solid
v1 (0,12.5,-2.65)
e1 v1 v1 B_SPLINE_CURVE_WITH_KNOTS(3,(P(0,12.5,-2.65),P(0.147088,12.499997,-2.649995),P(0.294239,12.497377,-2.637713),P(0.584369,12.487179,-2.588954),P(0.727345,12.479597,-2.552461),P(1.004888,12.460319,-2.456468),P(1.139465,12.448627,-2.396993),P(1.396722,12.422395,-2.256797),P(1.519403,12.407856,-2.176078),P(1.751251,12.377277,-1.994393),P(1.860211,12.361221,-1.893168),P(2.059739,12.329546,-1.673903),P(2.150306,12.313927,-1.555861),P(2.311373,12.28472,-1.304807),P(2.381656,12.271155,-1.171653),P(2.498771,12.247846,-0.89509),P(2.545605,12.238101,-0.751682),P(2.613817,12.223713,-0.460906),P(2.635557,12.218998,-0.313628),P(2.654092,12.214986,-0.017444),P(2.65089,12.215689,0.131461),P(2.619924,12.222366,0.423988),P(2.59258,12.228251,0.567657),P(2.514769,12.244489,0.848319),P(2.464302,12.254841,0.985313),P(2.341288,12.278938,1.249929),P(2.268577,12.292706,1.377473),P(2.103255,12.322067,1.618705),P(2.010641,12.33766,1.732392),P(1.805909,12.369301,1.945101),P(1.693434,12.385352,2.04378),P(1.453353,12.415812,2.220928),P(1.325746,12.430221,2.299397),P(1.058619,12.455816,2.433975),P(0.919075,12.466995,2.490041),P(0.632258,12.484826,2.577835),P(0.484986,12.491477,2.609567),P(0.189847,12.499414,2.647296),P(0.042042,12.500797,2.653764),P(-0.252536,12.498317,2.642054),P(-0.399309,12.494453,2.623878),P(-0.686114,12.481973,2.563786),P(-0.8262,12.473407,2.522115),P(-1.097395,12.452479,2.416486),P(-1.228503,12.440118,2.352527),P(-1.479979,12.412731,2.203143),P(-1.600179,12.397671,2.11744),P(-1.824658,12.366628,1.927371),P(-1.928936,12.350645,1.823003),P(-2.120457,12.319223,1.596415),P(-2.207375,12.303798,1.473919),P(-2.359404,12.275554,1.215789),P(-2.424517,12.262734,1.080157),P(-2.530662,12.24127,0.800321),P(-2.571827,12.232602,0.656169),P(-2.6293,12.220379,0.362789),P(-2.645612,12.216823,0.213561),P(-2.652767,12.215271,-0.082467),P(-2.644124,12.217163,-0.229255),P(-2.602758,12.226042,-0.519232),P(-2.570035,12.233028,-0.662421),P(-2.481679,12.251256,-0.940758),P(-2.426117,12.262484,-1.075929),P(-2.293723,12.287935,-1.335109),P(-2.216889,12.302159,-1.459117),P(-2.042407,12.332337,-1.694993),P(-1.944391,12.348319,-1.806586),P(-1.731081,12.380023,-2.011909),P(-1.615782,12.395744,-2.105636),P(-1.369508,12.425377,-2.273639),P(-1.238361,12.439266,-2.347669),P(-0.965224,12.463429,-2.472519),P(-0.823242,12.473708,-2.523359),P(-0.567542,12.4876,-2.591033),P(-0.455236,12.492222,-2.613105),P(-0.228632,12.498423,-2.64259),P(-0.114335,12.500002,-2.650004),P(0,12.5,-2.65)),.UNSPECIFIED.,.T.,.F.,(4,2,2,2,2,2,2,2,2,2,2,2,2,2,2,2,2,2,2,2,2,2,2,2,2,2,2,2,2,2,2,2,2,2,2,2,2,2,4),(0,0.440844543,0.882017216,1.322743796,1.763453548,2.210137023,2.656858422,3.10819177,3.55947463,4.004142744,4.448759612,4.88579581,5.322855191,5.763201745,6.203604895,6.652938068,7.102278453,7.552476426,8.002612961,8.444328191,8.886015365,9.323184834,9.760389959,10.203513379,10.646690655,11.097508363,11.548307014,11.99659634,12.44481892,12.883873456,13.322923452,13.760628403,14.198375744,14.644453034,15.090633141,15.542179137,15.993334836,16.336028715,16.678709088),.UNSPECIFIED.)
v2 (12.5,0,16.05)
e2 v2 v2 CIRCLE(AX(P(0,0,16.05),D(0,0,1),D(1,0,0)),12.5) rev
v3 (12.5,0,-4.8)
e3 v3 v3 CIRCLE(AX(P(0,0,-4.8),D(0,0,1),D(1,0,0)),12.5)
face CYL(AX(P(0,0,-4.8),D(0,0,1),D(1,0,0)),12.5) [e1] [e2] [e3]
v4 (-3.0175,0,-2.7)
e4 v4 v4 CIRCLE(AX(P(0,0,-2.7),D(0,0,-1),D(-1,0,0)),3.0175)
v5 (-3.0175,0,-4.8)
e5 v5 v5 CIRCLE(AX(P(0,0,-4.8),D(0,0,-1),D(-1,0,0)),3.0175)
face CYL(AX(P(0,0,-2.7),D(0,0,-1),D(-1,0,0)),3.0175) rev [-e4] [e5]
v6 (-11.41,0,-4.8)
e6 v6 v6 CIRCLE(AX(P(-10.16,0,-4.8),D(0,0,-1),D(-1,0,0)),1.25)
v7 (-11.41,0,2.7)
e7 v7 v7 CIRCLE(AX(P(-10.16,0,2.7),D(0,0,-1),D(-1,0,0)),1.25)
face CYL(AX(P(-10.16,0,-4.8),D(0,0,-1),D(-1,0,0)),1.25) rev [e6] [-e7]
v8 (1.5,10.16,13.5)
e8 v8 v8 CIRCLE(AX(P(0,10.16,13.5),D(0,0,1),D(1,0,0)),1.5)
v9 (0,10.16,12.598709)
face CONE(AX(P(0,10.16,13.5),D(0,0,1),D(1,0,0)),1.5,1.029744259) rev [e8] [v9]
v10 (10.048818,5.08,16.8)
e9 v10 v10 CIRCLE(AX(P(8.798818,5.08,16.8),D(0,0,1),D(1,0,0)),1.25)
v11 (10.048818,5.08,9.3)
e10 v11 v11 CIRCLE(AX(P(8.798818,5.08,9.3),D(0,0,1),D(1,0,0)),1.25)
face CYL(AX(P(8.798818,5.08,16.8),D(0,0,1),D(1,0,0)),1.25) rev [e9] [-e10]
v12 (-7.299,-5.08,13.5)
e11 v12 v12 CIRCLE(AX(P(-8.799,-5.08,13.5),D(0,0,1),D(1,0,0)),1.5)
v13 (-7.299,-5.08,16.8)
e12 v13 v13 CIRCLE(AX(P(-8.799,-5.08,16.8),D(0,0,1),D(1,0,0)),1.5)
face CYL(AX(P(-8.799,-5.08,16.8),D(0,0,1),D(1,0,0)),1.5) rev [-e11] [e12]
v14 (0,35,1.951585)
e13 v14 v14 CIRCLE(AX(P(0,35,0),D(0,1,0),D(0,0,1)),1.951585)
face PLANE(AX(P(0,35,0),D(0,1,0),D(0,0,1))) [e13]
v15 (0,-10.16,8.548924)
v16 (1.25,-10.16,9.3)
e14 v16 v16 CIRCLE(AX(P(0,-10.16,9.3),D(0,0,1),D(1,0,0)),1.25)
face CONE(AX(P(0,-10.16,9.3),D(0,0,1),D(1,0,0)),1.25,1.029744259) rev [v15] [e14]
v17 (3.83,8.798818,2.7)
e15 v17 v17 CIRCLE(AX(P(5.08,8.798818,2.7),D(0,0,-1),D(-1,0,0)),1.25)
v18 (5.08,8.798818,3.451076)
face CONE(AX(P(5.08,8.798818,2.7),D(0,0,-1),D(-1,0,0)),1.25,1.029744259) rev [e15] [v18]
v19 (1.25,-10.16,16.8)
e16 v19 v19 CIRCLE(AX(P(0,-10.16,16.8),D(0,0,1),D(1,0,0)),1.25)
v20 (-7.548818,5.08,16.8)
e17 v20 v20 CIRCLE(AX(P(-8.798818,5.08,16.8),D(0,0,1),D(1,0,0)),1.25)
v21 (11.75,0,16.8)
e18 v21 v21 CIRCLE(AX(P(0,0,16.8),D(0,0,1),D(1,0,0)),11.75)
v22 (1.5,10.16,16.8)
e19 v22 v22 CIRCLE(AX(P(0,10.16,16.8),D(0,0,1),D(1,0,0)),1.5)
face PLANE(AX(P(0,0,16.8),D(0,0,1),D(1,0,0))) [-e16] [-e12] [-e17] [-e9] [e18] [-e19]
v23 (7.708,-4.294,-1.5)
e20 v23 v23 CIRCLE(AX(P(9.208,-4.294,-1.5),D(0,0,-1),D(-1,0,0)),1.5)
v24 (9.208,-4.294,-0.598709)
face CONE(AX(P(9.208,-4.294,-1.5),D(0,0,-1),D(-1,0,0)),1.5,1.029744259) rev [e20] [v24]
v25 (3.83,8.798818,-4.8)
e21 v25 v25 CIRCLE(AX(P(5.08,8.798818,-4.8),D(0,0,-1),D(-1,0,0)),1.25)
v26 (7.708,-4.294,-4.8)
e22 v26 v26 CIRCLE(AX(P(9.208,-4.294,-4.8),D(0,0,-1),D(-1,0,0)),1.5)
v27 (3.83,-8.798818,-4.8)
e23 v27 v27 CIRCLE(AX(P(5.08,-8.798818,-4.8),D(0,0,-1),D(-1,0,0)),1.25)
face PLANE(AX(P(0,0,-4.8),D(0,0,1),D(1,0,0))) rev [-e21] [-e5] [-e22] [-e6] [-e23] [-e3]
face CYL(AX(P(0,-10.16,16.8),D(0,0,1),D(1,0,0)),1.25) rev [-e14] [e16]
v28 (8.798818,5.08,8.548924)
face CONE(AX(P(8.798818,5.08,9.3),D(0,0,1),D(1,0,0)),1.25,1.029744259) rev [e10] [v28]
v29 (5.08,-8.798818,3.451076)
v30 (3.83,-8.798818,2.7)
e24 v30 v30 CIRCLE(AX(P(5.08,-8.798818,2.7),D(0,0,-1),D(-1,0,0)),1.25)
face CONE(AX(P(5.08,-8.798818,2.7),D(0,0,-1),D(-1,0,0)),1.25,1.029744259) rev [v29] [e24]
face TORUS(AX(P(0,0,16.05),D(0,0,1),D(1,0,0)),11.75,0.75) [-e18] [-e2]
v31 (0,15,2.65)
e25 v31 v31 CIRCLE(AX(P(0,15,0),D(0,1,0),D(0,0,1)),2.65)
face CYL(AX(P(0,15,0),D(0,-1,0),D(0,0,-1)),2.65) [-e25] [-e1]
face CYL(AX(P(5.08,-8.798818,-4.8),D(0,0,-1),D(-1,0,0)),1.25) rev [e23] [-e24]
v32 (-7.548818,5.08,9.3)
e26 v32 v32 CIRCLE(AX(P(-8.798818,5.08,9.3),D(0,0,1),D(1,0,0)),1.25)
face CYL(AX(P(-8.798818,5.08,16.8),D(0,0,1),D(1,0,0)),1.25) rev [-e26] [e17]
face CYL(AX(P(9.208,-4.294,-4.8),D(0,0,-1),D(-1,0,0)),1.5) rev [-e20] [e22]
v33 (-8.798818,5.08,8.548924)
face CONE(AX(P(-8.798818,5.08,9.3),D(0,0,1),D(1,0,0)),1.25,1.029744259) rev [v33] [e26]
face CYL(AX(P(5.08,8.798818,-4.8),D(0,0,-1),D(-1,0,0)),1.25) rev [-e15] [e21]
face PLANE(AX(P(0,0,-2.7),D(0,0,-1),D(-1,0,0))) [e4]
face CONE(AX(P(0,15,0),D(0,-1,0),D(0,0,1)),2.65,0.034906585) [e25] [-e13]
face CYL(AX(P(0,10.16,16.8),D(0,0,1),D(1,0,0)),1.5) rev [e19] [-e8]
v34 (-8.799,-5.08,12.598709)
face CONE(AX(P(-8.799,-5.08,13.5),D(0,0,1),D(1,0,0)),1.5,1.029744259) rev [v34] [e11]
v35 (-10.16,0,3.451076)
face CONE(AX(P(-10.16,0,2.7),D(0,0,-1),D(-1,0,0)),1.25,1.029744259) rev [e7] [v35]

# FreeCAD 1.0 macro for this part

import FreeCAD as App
import Part
import Sketcher
Q = App.Units.Quantity


def edges_at(feature, points):
    """Names of the edges that pass closest to the given points."""
    edges = feature.Shape.Edges
    near = lambda p: min(range(len(edges)), key=lambda i: edges[i].distToShape(Part.Vertex(*p))[0])
    return sorted({f"Edge{near(p) + 1}" for p in points})


def add_polygon(sketch, points):
    """Adds a closed chain of lines whose ends are joined by coincident constraints."""
    first, n = sketch.GeometryCount, len(points)
    for a, b in zip(points, points[1:] + points[:1]):
        sketch.addGeometry(Part.LineSegment(App.Vector(*a, 0), App.Vector(*b, 0)), False)
    for i in range(n):
        sketch.addConstraint(Sketcher.Constraint("Coincident", first + i, 2, first + (i + 1) % n, 1))

doc = App.newDocument("Part")
body = doc.addObject("PartDesign::Body", "Body")

sketch1 = body.newObject("Sketcher::SketchObject", "Sketch")
sketch1.AttachmentSupport = (doc.getObject("XY_Plane"), [""])
sketch1.MapMode = "FlatFace"
sketch1.addGeometry(Part.Circle(App.Vector(0, 0, 0), App.Vector(0, 0, 1), 12.5), False)
sketch1.addConstraint([
    Sketcher.Constraint("Coincident", 0, 3, -1, 1),
    Sketcher.Constraint("Diameter", 0, 25.0),
])
pad1 = body.newObject("PartDesign::Pad", "Pad")
pad1.Profile = sketch1
pad1.Type = "TwoLengths"
pad1.Length = 16.8
pad1.Length2 = 4.8

sketch2 = body.newObject("Sketcher::SketchObject", "Sketch001")
sketch2.AttachmentSupport = (doc.getObject("YZ_Plane"), [""])
sketch2.MapMode = "FlatFace"
add_polygon(sketch2, [(-10.16, 8.548924), (-10.16, 16.8), (-11.41, 16.8), (-11.41, 9.3)])
sketch2.addGeometry(Part.LineSegment(App.Vector(-10.16, 16.8, 0), App.Vector(-10.16, 8.548924, 0)), True)
sketch2.addConstraint([
    Sketcher.Constraint("Vertical", 0),
    Sketcher.Constraint("Horizontal", 1),
    Sketcher.Constraint("Vertical", 2),
    Sketcher.Constraint("Vertical", 4),
    Sketcher.Constraint("Coincident", 4, 1, 0, 2),
    Sketcher.Constraint("Equal", 0, 4),
    Sketcher.Constraint("Angle", 3, Q("-31 deg")),
    Sketcher.Constraint("DistanceY", 2, 2, 2, 1, 7.5),
    Sketcher.Constraint("DistanceX", 1, 2, 1, 1, 1.25),
    Sketcher.Constraint("DistanceY", -1, 1, 0, 2, 16.8),
    Sketcher.Constraint("DistanceX", 0, 2, -1, 1, 10.16),
])
groove = body.newObject("PartDesign::Groove", "Groove")
groove.Profile = sketch2
groove.ReferenceAxis = (sketch2, ["Axis0"])
groove.Angle = 360
doc.recompute()

polarpattern = body.newObject("PartDesign::PolarPattern", "PolarPattern")
polarpattern.Originals = [groove]
polarpattern.Axis = (doc.getObject("Z_Axis"), [""])
polarpattern.Angle = 360
polarpattern.Occurrences = 3
body.Tip = polarpattern

sketch3 = body.newObject("Sketcher::SketchObject", "Sketch002")
sketch3.AttachmentSupport = (doc.getObject("XY_Plane"), [""])
sketch3.MapMode = "FlatFace"
sketch3.AttachmentOffset = App.Placement(App.Vector(0, 0, 16.8), App.Rotation())
sketch3.addGeometry([
    Part.Circle(App.Vector(-8.799, -5.08, 0), App.Vector(0, 0, 1), 1.5),
    Part.Circle(App.Vector(0, 10.16, 0), App.Vector(0, 0, 1), 1.5),
], False)
sketch3.addConstraint([
    Sketcher.Constraint("Equal", 0, 1),
    Sketcher.Constraint("PointOnObject", 1, 3, -2),
    Sketcher.Constraint("Diameter", 0, 3.0),
    Sketcher.Constraint("DistanceY", 0, 3, -1, 1, 5.08),
    Sketcher.Constraint("DistanceY", -1, 1, 1, 3, 10.16),
    Sketcher.Constraint("DistanceX", 0, 3, -1, 1, 8.799),
])
doc.recompute()
hole = body.newObject("PartDesign::Hole", "Hole")
hole.Profile = sketch3
hole.ThreadType = "None"
hole.Diameter = 3
hole.DepthType = "Dimension"
hole.Depth = 3.3
hole.DrillPoint = "Angled"
hole.DrillPointAngle = 118

sketch4 = body.newObject("Sketcher::SketchObject", "Sketch003")
sketch4.AttachmentSupport = (doc.getObject("YZ_Plane"), [""])
sketch4.MapMode = "FlatFace"
sketch4.AttachmentOffset = App.Placement(App.Vector(0, 0, -10.16), App.Rotation())
add_polygon(sketch4, [(0, 3.451076), (0, -4.8), (1.25, -4.8), (1.25, 2.7)])
sketch4.addConstraint([
    Sketcher.Constraint("Vertical", 0),
    Sketcher.Constraint("Horizontal", 1),
    Sketcher.Constraint("Vertical", 2),
    Sketcher.Constraint("PointOnObject", 0, 2, -2),
    Sketcher.Constraint("Angle", 3, Q("149 deg")),
    Sketcher.Constraint("DistanceY", 2, 1, 2, 2, 7.5),
    Sketcher.Constraint("DistanceX", 1, 1, 1, 2, 1.25),
    Sketcher.Constraint("DistanceY", 0, 2, -1, 1, 4.8),
])
groove2 = body.newObject("PartDesign::Groove", "Groove001")
groove2.Profile = sketch4
groove2.ReferenceAxis = (sketch4, ["V_Axis"])
groove2.Angle = 360
doc.recompute()

polarpattern2 = body.newObject("PartDesign::PolarPattern", "PolarPattern001")
polarpattern2.Originals = [groove2]
polarpattern2.Axis = (doc.getObject("Z_Axis"), [""])
polarpattern2.Angle = 360
polarpattern2.Occurrences = 3
body.Tip = polarpattern2

sketch5 = body.newObject("Sketcher::SketchObject", "Sketch004")
sketch5.AttachmentSupport = (doc.getObject("XY_Plane"), [""])
sketch5.MapMode = "FlatFace"
sketch5.AttachmentOffset = App.Placement(App.Vector(0, 0, -4.8), App.Rotation())
sketch5.addGeometry(Part.Circle(App.Vector(9.208, -4.294, 0), App.Vector(0, 0, 1), 1.5), False)
sketch5.addConstraint([
    Sketcher.Constraint("Diameter", 0, 3.0),
    Sketcher.Constraint("DistanceX", -1, 1, 0, 3, 9.208),
    Sketcher.Constraint("DistanceY", 0, 3, -1, 1, 4.294),
])
doc.recompute()
hole2 = body.newObject("PartDesign::Hole", "Hole001")
hole2.Profile = sketch5
hole2.ThreadType = "None"
hole2.Diameter = 3
hole2.DepthType = "Dimension"
hole2.Depth = 3.3
hole2.DrillPoint = "Angled"
hole2.DrillPointAngle = 118
hole2.Reversed = True

sketch6 = body.newObject("Sketcher::SketchObject", "Sketch005")
sketch6.AttachmentSupport = (doc.getObject("XY_Plane"), [""])
sketch6.MapMode = "FlatFace"
sketch6.AttachmentOffset = App.Placement(App.Vector(0, 0, -4.8), App.Rotation())
sketch6.addGeometry(Part.Circle(App.Vector(0, 0, 0), App.Vector(0, 0, 1), 3.0175), False)
sketch6.addConstraint([
    Sketcher.Constraint("Coincident", 0, 3, -1, 1),
    Sketcher.Constraint("Diameter", 0, 6.035),
])
pocket1 = body.newObject("PartDesign::Pocket", "Pocket")
pocket1.Profile = sketch6
pocket1.Length = 2.1
pocket1.Reversed = True
doc.recompute()

fillet = body.newObject("PartDesign::Fillet", "Fillet")
fillet.Base = (pocket1, edges_at(pocket1, [(-12.5, 0, 16.8)]))
fillet.Radius = 0.75

sketch7 = body.newObject("Sketcher::SketchObject", "Sketch006")
sketch7.AttachmentSupport = (doc.getObject("XZ_Plane"), [""])
sketch7.MapMode = "FlatFace"
sketch7.addGeometry(Part.Circle(App.Vector(0, 0, 0), App.Vector(0, 0, 1), 2.65), False)
sketch7.addConstraint([
    Sketcher.Constraint("Coincident", 0, 3, -1, 1),
    Sketcher.Constraint("Diameter", 0, 5.3),
])
pad2 = body.newObject("PartDesign::Pad", "Pad001")
pad2.Profile = sketch7
pad2.Length = 15
pad2.Reversed = True

sketch8 = body.newObject("Sketcher::SketchObject", "Sketch007")
sketch8.AttachmentSupport = (doc.getObject("XZ_Plane"), [""])
sketch8.MapMode = "FlatFace"
sketch8.AttachmentOffset = App.Placement(App.Vector(0, 0, -15), App.Rotation())
sketch8.addGeometry(Part.Circle(App.Vector(0, 0, 0), App.Vector(0, 0, 1), 2.65), False)
sketch8.addConstraint([
    Sketcher.Constraint("Coincident", 0, 3, -1, 1),
    Sketcher.Constraint("Diameter", 0, 5.3),
])
pad3 = body.newObject("PartDesign::Pad", "Pad002")
pad3.Profile = sketch8
pad3.Length = 20
pad3.Reversed = True
pad3.TaperAngle = -2

doc.recompute()
